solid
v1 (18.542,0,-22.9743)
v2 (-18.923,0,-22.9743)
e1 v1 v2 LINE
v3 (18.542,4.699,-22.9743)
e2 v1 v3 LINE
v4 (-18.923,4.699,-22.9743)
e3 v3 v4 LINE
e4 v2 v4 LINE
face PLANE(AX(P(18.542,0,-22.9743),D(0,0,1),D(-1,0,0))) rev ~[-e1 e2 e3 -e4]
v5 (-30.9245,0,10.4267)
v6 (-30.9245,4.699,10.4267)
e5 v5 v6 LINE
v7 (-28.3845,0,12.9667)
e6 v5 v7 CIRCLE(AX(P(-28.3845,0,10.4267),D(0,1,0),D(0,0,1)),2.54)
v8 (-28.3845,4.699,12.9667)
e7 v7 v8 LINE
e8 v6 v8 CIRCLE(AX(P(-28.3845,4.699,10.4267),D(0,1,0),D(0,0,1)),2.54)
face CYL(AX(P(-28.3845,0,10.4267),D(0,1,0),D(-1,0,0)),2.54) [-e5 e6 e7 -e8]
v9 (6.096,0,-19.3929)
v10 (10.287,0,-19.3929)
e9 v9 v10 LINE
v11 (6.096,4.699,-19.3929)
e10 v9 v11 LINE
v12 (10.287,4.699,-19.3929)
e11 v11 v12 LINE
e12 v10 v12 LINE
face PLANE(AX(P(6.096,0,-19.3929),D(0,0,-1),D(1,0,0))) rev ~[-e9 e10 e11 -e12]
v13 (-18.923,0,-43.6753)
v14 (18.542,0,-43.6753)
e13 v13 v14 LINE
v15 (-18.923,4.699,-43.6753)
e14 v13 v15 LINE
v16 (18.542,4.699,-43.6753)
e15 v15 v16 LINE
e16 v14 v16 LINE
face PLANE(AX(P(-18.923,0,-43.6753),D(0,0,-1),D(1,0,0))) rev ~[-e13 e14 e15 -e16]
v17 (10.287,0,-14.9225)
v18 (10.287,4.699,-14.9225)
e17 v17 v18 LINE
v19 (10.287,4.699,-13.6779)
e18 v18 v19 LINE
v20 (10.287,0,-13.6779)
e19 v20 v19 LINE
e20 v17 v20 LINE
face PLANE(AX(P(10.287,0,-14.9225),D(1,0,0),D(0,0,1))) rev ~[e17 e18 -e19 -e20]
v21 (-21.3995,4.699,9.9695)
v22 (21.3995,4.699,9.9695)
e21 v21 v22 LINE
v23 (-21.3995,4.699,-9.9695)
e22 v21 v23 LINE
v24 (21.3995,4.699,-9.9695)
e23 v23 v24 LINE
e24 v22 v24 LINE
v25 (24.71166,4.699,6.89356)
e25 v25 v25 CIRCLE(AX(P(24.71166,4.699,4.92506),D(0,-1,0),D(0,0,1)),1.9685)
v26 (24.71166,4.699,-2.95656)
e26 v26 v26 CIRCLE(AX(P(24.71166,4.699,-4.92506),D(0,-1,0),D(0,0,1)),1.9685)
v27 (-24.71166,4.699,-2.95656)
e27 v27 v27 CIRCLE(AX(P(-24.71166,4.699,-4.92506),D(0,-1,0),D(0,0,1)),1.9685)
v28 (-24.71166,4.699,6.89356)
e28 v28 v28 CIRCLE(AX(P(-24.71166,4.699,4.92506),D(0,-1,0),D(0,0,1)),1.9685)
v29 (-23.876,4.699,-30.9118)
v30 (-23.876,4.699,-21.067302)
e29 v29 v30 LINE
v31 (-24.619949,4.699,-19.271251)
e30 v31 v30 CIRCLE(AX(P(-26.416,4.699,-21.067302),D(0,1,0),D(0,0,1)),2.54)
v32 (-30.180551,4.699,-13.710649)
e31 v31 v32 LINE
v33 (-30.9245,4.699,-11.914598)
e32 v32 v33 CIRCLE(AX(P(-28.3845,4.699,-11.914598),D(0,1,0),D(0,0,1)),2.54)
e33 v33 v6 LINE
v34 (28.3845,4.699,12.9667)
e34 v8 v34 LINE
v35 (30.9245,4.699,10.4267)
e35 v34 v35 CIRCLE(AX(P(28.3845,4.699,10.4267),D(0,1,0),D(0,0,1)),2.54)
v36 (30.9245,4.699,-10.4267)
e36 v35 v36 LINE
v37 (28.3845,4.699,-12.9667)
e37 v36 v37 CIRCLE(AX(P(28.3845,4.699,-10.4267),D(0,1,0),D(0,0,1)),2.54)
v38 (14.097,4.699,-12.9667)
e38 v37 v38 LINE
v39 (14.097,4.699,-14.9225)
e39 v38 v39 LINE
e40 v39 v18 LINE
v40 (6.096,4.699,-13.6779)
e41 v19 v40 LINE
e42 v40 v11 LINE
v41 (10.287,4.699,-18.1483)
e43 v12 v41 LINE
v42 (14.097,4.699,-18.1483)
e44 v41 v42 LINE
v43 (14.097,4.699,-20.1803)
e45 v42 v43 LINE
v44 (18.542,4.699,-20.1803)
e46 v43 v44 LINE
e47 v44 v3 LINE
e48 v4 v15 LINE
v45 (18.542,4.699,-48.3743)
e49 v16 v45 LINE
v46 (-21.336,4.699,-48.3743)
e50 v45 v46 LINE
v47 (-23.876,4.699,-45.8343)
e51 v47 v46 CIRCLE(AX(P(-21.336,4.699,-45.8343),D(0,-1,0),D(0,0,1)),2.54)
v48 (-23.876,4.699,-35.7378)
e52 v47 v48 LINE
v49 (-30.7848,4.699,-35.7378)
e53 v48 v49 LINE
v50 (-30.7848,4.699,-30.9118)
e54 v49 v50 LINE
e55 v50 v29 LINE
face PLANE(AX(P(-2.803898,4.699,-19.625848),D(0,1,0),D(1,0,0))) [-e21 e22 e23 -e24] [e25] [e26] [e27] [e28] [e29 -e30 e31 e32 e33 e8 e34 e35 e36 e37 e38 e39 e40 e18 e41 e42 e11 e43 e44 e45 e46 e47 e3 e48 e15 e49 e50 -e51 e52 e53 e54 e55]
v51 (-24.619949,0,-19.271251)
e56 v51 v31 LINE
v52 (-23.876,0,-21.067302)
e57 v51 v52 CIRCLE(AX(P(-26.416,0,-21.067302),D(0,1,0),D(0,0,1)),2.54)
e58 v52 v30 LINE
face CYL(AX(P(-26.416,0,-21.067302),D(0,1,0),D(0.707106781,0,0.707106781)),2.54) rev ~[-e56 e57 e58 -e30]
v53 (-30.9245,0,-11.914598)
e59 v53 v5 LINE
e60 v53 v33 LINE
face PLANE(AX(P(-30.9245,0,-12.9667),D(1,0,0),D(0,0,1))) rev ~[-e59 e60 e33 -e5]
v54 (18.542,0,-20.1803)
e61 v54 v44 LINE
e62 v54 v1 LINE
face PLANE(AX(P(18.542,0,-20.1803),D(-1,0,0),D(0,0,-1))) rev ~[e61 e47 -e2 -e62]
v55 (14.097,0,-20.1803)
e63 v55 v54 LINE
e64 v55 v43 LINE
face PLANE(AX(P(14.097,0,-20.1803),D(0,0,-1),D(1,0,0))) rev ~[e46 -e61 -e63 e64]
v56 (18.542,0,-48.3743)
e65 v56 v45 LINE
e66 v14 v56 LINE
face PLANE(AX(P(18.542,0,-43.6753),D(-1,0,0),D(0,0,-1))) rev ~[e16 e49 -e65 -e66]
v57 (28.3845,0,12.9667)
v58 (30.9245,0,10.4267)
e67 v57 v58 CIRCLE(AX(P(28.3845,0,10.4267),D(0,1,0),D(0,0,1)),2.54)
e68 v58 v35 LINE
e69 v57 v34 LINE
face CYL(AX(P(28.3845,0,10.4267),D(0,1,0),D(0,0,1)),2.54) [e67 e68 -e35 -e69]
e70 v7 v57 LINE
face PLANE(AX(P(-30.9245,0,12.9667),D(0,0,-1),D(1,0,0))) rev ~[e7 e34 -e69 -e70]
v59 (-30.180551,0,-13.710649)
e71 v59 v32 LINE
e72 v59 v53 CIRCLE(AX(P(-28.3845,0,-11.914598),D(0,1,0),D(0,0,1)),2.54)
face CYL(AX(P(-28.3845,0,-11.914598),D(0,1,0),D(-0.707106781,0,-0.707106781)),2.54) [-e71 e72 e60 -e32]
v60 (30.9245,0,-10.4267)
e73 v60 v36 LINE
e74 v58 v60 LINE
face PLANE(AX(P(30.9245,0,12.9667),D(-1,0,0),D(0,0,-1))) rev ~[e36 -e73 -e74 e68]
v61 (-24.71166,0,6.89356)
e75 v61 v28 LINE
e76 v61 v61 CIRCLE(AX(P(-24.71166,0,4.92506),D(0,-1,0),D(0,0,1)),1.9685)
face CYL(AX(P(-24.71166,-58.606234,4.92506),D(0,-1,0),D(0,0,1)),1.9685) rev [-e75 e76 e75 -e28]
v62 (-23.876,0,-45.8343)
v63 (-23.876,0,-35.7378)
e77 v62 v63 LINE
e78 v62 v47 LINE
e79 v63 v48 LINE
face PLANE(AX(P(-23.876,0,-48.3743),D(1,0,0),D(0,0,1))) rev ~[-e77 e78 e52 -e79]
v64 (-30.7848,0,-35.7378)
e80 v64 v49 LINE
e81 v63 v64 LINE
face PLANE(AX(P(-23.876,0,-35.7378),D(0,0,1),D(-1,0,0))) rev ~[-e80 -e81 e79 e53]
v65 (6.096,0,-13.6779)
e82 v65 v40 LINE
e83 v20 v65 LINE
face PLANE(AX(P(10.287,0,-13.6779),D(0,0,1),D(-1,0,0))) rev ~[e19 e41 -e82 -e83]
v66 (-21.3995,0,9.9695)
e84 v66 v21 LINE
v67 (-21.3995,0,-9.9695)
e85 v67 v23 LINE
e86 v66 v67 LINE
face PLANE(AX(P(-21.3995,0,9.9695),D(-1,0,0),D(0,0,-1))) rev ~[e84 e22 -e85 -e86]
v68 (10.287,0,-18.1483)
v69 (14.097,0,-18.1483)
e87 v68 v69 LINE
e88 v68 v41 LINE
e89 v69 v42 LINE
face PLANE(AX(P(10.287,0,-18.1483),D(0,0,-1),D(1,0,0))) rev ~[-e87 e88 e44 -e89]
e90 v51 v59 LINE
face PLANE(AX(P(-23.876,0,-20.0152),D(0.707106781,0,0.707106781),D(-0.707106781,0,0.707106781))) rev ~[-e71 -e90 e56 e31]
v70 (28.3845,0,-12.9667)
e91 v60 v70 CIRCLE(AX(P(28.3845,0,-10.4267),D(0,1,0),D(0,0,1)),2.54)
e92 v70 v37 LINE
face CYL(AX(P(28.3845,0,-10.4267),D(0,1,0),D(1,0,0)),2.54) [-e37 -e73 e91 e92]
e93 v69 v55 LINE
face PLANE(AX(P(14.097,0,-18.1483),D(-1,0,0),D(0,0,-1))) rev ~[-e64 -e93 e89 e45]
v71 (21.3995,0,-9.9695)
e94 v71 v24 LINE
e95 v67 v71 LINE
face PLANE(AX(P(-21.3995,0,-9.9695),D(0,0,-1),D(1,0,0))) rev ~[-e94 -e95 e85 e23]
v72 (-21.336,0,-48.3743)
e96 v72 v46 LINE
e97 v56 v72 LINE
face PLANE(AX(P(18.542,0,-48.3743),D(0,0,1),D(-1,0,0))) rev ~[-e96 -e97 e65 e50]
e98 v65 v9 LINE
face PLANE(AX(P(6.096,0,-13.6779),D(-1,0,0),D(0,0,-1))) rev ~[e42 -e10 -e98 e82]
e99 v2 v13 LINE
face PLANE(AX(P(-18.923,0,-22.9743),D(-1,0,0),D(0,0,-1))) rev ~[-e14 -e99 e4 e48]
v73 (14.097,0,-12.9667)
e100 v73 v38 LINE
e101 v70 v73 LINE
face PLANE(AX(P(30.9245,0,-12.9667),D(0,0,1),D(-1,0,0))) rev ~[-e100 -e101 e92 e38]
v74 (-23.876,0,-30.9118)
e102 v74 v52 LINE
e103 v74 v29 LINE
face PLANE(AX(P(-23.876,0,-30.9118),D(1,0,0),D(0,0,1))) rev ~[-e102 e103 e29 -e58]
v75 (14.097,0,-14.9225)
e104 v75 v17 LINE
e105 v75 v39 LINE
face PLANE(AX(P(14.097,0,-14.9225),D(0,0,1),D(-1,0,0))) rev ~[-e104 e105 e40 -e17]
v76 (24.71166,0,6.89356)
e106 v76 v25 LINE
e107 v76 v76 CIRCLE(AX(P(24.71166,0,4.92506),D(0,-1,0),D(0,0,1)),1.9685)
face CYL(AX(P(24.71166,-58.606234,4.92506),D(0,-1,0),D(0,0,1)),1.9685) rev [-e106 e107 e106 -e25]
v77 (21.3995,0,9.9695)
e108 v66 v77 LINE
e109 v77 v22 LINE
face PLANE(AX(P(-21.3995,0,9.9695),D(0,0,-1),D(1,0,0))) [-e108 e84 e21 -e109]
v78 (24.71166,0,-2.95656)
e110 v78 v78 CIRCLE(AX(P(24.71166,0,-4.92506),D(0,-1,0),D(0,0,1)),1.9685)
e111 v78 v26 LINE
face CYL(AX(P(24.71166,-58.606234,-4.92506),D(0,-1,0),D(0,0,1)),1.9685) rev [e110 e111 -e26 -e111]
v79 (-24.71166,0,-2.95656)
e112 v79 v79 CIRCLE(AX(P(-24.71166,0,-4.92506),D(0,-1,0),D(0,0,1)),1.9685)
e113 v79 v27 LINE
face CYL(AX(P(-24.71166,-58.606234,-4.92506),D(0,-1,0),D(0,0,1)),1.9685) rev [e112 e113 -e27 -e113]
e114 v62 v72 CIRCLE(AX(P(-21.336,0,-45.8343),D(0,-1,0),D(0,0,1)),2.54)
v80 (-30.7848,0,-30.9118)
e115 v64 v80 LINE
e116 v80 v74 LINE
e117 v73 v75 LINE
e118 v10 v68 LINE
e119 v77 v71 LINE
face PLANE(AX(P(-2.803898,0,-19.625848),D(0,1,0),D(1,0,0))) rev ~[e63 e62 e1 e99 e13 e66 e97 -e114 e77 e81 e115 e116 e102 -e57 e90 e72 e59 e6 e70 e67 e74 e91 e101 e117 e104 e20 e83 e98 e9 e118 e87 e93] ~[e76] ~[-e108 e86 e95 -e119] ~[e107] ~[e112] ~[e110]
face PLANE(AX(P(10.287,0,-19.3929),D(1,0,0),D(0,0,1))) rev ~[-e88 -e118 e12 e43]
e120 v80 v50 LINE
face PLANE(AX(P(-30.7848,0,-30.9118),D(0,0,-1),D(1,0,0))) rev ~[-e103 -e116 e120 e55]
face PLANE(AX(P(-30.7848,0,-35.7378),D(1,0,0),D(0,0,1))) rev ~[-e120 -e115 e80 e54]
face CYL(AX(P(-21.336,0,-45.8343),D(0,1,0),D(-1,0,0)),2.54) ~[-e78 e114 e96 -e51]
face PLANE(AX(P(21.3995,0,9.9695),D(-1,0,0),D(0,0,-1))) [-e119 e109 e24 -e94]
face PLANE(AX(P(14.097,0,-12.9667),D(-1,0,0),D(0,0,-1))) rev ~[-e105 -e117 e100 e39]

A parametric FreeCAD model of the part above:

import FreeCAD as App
import Part
import Sketcher

V = App.Vector
Q = App.Units.Quantity


def edges_at(feature, points):
    """Names of the edges that pass closest to the given points."""
    edges = feature.Shape.Edges
    near = lambda p: min(range(len(edges)), key=lambda i: edges[i].distToShape(Part.Vertex(*p))[0])
    return sorted({f"Edge{near(p) + 1}" for p in points})


def add_polygon(sketch, points):
    """Adds a closed chain of lines whose ends are joined by coincident constraints."""
    first, n = sketch.GeometryCount, len(points)
    for a, b in zip(points, points[1:] + points[:1]):
        sketch.addGeometry(Part.LineSegment(App.Vector(*a, 0), App.Vector(*b, 0)), False)
    for i in range(n):
        sketch.addConstraint(Sketcher.Constraint("Coincident", first + i, 2, first + (i + 1) % n, 1))

doc = App.newDocument("Part")
body = doc.addObject("PartDesign::Body", "Body")

# Sketch on XZ plane
sketch1 = body.newObject("Sketcher::SketchObject", "Sketch")
sketch1.AttachmentSupport = (doc.getObject("XZ_Plane"), [""])
sketch1.MapMode = "FlatFace"
add_polygon(sketch1, [(-23.9, -20), (-30.9, -13), (-30.9, 13), (30.9, 13), (30.9, -13), (14.1, -13), (14.1, -14.9), (10.3, -14.9), (10.3, -13.7), (6.1, -13.7), (6.1, -19.4), (10.3, -19.4), (10.3, -18.1), (14.1, -18.1), (14.1, -20.2), (18.5, -20.2), (18.5, -23), (-18.9, -23), (-18.9, -43.7), (18.5, -43.7), (18.5, -48.4), (-23.9, -48.4), (-23.9, -35.7), (-30.8, -35.7), (-30.8, -30.9), (-23.9, -30.9)])  # lines 0-25
add_polygon(sketch1, [(21.4, 10), (-21.4, 10), (-21.4, -10), (21.4, -10)])  # lines 26-29
sketch1.addConstraint([
    Sketcher.Constraint("Vertical", 1),
    Sketcher.Constraint("Horizontal", 2),
    Sketcher.Constraint("Vertical", 3),
    Sketcher.Constraint("Horizontal", 4),
    Sketcher.Constraint("Vertical", 5),
    Sketcher.Constraint("Horizontal", 6),
    Sketcher.Constraint("Vertical", 7),
    Sketcher.Constraint("Horizontal", 8),
    Sketcher.Constraint("Vertical", 9),
    Sketcher.Constraint("Horizontal", 10),
    Sketcher.Constraint("Vertical", 11),
    Sketcher.Constraint("Horizontal", 12),
    Sketcher.Constraint("Vertical", 13),
    Sketcher.Constraint("Horizontal", 14),
    Sketcher.Constraint("Vertical", 15),
    Sketcher.Constraint("Horizontal", 16),
    Sketcher.Constraint("Vertical", 17),
    Sketcher.Constraint("Horizontal", 18),
    Sketcher.Constraint("Vertical", 19),
    Sketcher.Constraint("Horizontal", 20),
    Sketcher.Constraint("Vertical", 21),
    Sketcher.Constraint("Horizontal", 22),
    Sketcher.Constraint("Vertical", 23),
    Sketcher.Constraint("Horizontal", 24),
    Sketcher.Constraint("Vertical", 25),
    Sketcher.Constraint("Horizontal", 26),
    Sketcher.Constraint("Vertical", 27),
    Sketcher.Constraint("Horizontal", 28),
    Sketcher.Constraint("Vertical", 29),
    Sketcher.Constraint("Symmetric", 0, 2, 2, 2, -1, 1),
    Sketcher.Constraint("Symmetric", 26, 2, 28, 2, -1, 1),
    Sketcher.Constraint("Horizontal", 0, 2, 3, 2),
    Sketcher.Constraint("Vertical", 7, 2, 10, 2),
    Sketcher.Constraint("Vertical", 5, 2, 12, 2),
    Sketcher.Constraint("Vertical", 15, 2, 18, 2),
    Sketcher.Constraint("Vertical", 21, 2, 24, 2),
    Sketcher.Constraint("Equal", 7, 11),
    Sketcher.Constraint("Angle", 0, Q("135 deg")),
    Sketcher.Constraint("DistanceY", 19, 2, 15, 2, Q("1 in")),
    Sketcher.Constraint("DistanceX", 6, 2, 6, 1, Q("0.15 in")),
    Sketcher.Constraint("DistanceX", 20, 2, 20, 1, Q("1.67 in")),
    Sketcher.Constraint("DistanceY", 13, 2, 13, 1, Q("0.08 in")),
    Sketcher.Constraint("DistanceY", 15, 2, 15, 1, Q("0.11 in")),
    Sketcher.Constraint("DistanceY", 23, 1, 23, 2, Q("0.19 in")),
    Sketcher.Constraint("DistanceX", 2, 1, 2, 2, Q("2.435 in")),
    Sketcher.Constraint("DistanceX", 8, 2, 8, 1, Q("0.165 in")),
    Sketcher.Constraint("DistanceX", 14, 1, 14, 2, Q("0.175 in")),
    Sketcher.Constraint("DistanceX", 16, 2, 16, 1, Q("1.475 in")),
    Sketcher.Constraint("DistanceX", 22, 2, 22, 1, Q("0.272 in")),
    Sketcher.Constraint("DistanceX", 26, 2, 26, 1, Q("1.685 in")),
    Sketcher.Constraint("DistanceY", 1, 1, 1, 2, Q("1.021 in")),
    Sketcher.Constraint("DistanceY", 5, 2, 5, 1, Q("0.077 in")),
    Sketcher.Constraint("DistanceY", 7, 1, 7, 2, Q("0.049 in")),
    Sketcher.Constraint("DistanceY", 9, 2, 9, 1, Q("0.225 in")),
    Sketcher.Constraint("DistanceY", 17, 2, 17, 1, Q("0.815 in")),
    Sketcher.Constraint("DistanceY", 25, 1, 25, 2, Q("0.429 in")),
    Sketcher.Constraint("DistanceY", 27, 2, 27, 1, Q("0.785 in")),
    Sketcher.Constraint("DistanceX", -1, 1, 8, 2, Q("0.24 in")),
])
pad1 = body.newObject("PartDesign::Pad", "Pad")
pad1.Profile = sketch1
pad1.Length = Q("0.185 in")
pad1.Reversed = True
doc.recompute()

fillet = body.newObject("PartDesign::Fillet", "Fillet")
fillet.Base = (pad1, edges_at(pad1, [
    (-30.924, 2.349, -12.967),
    (-23.876, 2.349, -20.015),
    (-23.876, 2.349, -48.374),
    (-30.924, 2.349, 12.967),
    (30.924, 2.349, 12.967),
    (30.924, 2.349, -12.967),
]))
fillet.Radius = Q("0.1 in")

# Sketch on XZ plane
sketch2 = body.newObject("Sketcher::SketchObject", "Sketch001")
sketch2.AttachmentSupport = (doc.getObject("XZ_Plane"), [""])
sketch2.MapMode = "FlatFace"
sketch2.addGeometry([
    Part.Circle(V(-24.7, 4.9, 0), V(0, 0, 1), 2),
    Part.Circle(V(24.7, 4.9, 0), V(0, 0, 1), 2),
    Part.Circle(V(24.7, -4.9, 0), V(0, 0, 1), 2),
    Part.Circle(V(-24.7, -4.9, 0), V(0, 0, 1), 2),
], False)
sketch2.addConstraint([
    Sketcher.Constraint("Equal", 0, 1),
    Sketcher.Constraint("Equal", 1, 2),
    Sketcher.Constraint("Equal", 2, 3),
    Sketcher.Constraint("Symmetric", 0, 3, 2, 3, -1, 1),
    Sketcher.Constraint("Symmetric", 1, 3, 3, 3, -1, 1),
    Sketcher.Constraint("Symmetric", 0, 3, 1, 3, -2),
    Sketcher.Constraint("Diameter", 0, Q("0.155 in")),
    Sketcher.Constraint("DistanceX", 0, 3, -1, 1, Q("0.9729 in")),
    Sketcher.Constraint("DistanceY", -1, 1, 0, 3, Q("0.1939 in")),
])
pocket1 = body.newObject("PartDesign::Pocket", "Pocket")
pocket1.Profile = sketch2
pocket1.Type = "ThroughAll"
pocket1.Midplane = True

doc.recompute()
